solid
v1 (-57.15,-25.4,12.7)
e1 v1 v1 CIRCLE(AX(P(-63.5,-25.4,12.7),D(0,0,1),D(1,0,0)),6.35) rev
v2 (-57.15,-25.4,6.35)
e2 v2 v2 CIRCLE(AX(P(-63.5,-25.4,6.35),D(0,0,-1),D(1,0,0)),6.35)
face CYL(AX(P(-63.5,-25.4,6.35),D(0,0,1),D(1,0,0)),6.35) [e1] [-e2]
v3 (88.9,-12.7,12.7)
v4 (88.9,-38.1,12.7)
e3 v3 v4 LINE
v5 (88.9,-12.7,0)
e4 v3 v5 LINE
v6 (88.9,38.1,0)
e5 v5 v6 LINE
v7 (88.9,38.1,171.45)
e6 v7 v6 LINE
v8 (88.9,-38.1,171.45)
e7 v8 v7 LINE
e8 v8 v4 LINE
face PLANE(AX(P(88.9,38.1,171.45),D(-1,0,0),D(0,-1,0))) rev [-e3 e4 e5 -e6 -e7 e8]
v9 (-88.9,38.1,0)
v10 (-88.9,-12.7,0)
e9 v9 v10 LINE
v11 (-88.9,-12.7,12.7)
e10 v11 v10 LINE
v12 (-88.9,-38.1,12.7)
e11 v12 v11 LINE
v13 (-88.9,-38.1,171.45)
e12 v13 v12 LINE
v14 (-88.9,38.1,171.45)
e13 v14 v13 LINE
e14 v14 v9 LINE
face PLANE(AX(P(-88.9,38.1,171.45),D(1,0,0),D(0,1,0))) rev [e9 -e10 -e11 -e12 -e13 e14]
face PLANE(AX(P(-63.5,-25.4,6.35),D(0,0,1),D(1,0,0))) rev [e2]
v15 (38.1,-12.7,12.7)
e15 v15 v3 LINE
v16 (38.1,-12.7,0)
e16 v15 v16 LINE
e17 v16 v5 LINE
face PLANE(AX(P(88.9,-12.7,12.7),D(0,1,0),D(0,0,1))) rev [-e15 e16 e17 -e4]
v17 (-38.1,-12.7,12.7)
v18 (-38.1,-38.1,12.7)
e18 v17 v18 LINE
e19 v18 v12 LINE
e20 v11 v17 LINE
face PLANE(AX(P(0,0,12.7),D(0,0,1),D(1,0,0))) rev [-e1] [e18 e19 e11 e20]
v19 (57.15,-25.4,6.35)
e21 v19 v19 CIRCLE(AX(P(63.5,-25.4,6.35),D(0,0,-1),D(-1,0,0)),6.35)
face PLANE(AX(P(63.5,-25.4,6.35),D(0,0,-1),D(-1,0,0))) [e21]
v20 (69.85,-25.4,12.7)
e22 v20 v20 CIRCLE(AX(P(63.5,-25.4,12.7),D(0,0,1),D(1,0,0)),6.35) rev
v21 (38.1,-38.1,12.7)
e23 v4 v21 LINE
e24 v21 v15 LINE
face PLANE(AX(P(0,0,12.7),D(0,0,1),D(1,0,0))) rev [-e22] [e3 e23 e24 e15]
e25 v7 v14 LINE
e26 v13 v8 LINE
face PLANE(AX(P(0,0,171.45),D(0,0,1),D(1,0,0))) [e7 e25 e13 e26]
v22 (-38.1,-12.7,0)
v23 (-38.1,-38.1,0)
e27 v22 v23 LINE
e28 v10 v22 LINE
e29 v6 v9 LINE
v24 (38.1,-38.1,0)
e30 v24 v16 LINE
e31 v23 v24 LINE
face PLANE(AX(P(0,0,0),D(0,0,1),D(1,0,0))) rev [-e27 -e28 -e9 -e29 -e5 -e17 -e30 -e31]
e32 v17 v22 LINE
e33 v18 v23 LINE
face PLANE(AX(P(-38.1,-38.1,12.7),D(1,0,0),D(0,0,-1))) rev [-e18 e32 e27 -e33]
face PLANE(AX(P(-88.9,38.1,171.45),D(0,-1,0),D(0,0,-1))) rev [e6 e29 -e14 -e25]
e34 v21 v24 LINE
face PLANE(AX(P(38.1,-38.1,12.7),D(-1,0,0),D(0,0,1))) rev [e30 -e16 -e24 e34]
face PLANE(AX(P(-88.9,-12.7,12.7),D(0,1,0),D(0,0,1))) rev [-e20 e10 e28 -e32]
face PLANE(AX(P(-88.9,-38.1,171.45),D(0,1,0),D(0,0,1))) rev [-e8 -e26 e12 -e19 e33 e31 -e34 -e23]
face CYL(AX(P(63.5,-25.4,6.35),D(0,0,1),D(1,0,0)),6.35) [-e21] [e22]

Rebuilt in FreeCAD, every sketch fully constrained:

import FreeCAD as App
import Part
import Sketcher
Q = App.Units.Quantity


def add_polygon(sketch, points):
    """Adds a closed chain of lines whose ends are joined by coincident constraints."""
    first, n = sketch.GeometryCount, len(points)
    for a, b in zip(points, points[1:] + points[:1]):
        sketch.addGeometry(Part.LineSegment(App.Vector(*a, 0), App.Vector(*b, 0)), False)
    for i in range(n):
        sketch.addConstraint(Sketcher.Constraint("Coincident", first + i, 2, first + (i + 1) % n, 1))

doc = App.newDocument("Part")
body = doc.addObject("PartDesign::Body", "Body")

# Sketch on XY plane
sketch1 = body.newObject("Sketcher::SketchObject", "Sketch")
sketch1.AttachmentSupport = (doc.getObject("XY_Plane"), [""])
sketch1.MapMode = "FlatFace"
add_polygon(sketch1, [(-88.9, 38.1), (-88.9, -38.1), (88.9, -38.1), (88.9, 38.1)])  # lines 0-3
sketch1.addConstraint([
    Sketcher.Constraint("Vertical", 0),
    Sketcher.Constraint("Horizontal", 1),
    Sketcher.Constraint("Vertical", 2),
    Sketcher.Constraint("Horizontal", 3),
    Sketcher.Constraint("Symmetric", 0, 2, 2, 2, -1, 1),
    Sketcher.Constraint("DistanceX", 1, 1, 1, 2, Q("7 in")),
    Sketcher.Constraint("DistanceY", 0, 2, 0, 1, Q("3 in")),
])
pad1 = body.newObject("PartDesign::Pad", "Pad")
pad1.Profile = sketch1
pad1.Length = Q("6.75 in")

# Sketch on XY plane
sketch2 = body.newObject("Sketcher::SketchObject", "Sketch001")
sketch2.AttachmentSupport = (doc.getObject("XY_Plane"), [""])
sketch2.MapMode = "FlatFace"
add_polygon(sketch2, [(88.9, -12.7), (88.9, -38.1), (38.1, -38.1), (38.1, -12.7)])  # lines 0-3
add_polygon(sketch2, [(-38.1, -12.7), (-38.1, -38.1), (-88.9, -38.1), (-88.9, -12.7)])  # lines 4-7
sketch2.addConstraint([
    Sketcher.Constraint("Vertical", 0),
    Sketcher.Constraint("Horizontal", 1),
    Sketcher.Constraint("Vertical", 2),
    Sketcher.Constraint("Horizontal", 3),
    Sketcher.Constraint("Vertical", 4),
    Sketcher.Constraint("Horizontal", 5),
    Sketcher.Constraint("Vertical", 6),
    Sketcher.Constraint("Horizontal", 7),
    Sketcher.Constraint("Symmetric", 1, 2, 4, 2, -2),
    Sketcher.Constraint("Symmetric", 3, 2, 6, 2, -2),
    Sketcher.Constraint("DistanceX", 1, 2, 1, 1, Q("2 in")),
    Sketcher.Constraint("DistanceY", 0, 2, 0, 1, Q("1 in")),
    Sketcher.Constraint("DistanceX", 4, 2, 1, 2, Q("3 in")),
    Sketcher.Constraint("DistanceY", 0, 2, -1, 1, Q("1.5 in")),
])
pocket1 = body.newObject("PartDesign::Pocket", "Pocket")
pocket1.Profile = sketch2
pocket1.Length = Q("0.5 in")
pocket1.Reversed = True

# Sketch on XY plane
sketch3 = body.newObject("Sketcher::SketchObject", "Sketch002")
sketch3.AttachmentSupport = (doc.getObject("XY_Plane"), [""])
sketch3.MapMode = "FlatFace"
sketch3.AttachmentOffset = App.Placement(App.Vector(0, 0, 0.5 * 25.4), App.Rotation())
sketch3.addGeometry([
    Part.Circle(App.Vector(63.5, -25.4, 0), App.Vector(0, 0, 1), 6.35),
    Part.Circle(App.Vector(-63.5, -25.4, 0), App.Vector(0, 0, 1), 6.35),
], False)
sketch3.addConstraint([
    Sketcher.Constraint("Equal", 0, 1),
    Sketcher.Constraint("Symmetric", 0, 3, 1, 3, -2),
    Sketcher.Constraint("Diameter", 0, Q("0.5 in")),
    Sketcher.Constraint("DistanceY", 0, 3, -1, 1, Q("1 in")),
    Sketcher.Constraint("DistanceX", 1, 3, 0, 3, Q("5 in")),
])
pad2 = body.newObject("PartDesign::Pad", "Pad001")
pad2.Profile = sketch3
pad2.Length = Q("0.25 in")
pad2.Reversed = True

doc.recompute()
